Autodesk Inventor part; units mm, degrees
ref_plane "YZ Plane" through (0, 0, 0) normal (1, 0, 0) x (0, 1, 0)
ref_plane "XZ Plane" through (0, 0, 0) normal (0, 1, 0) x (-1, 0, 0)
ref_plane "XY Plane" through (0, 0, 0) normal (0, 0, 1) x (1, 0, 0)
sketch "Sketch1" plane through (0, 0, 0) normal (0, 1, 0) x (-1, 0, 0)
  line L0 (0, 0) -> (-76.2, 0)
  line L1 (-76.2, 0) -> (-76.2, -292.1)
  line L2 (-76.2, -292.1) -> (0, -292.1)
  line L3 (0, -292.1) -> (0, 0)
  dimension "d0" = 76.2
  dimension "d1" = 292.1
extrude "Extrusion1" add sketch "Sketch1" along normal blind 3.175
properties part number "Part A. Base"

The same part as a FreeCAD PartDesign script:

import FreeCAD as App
import Part
import Sketcher
Q = App.Units.Quantity

doc = App.newDocument("Part")
body = doc.addObject("PartDesign::Body", "Body")

# Sketch on XZ plane
sketch1 = body.newObject("Sketcher::SketchObject", "Sketch")
sketch1.AttachmentSupport = (doc.getObject("XZ_Plane"), [""])
sketch1.MapMode = "FlatFace"
sketch1.addGeometry(Part.LineSegment(App.Vector(0, -292.1, 0), App.Vector(0, 0, 0)), False)
sketch1.addGeometry(Part.LineSegment(App.Vector(0, 0, 0), App.Vector(76.2, 0, 0)), False)
sketch1.addGeometry(Part.LineSegment(App.Vector(76.2, 0, 0), App.Vector(76.2, -292.1, 0)), False)
sketch1.addGeometry(Part.LineSegment(App.Vector(76.2, -292.1, 0), App.Vector(0, -292.1, 0)), False)
sketch1.addConstraint(Sketcher.Constraint("Coincident", 0, 2, 1, 1))
sketch1.addConstraint(Sketcher.Constraint("Coincident", 1, 2, 2, 1))
sketch1.addConstraint(Sketcher.Constraint("Coincident", 2, 2, 3, 1))
sketch1.addConstraint(Sketcher.Constraint("Coincident", 3, 2, 0, 1))
sketch1.addConstraint(Sketcher.Constraint("Vertical", 0))
sketch1.addConstraint(Sketcher.Constraint("Horizontal", 1))
sketch1.addConstraint(Sketcher.Constraint("Vertical", 2))
sketch1.addConstraint(Sketcher.Constraint("Horizontal", 3))
sketch1.addConstraint(Sketcher.Constraint("Coincident", 0, 2, -1, 1))
sketch1.addConstraint(Sketcher.Constraint("DistanceX", 1, 1, 1, 2, Q("3 in")))
sketch1.addConstraint(Sketcher.Constraint("DistanceY", 0, 1, 0, 2, Q("11.5 in")))
pad1 = body.newObject("PartDesign::Pad", "Pad")
pad1.Profile = sketch1
pad1.Length = Q("0.125 in")
pad1.Reversed = True

doc.recompute()
